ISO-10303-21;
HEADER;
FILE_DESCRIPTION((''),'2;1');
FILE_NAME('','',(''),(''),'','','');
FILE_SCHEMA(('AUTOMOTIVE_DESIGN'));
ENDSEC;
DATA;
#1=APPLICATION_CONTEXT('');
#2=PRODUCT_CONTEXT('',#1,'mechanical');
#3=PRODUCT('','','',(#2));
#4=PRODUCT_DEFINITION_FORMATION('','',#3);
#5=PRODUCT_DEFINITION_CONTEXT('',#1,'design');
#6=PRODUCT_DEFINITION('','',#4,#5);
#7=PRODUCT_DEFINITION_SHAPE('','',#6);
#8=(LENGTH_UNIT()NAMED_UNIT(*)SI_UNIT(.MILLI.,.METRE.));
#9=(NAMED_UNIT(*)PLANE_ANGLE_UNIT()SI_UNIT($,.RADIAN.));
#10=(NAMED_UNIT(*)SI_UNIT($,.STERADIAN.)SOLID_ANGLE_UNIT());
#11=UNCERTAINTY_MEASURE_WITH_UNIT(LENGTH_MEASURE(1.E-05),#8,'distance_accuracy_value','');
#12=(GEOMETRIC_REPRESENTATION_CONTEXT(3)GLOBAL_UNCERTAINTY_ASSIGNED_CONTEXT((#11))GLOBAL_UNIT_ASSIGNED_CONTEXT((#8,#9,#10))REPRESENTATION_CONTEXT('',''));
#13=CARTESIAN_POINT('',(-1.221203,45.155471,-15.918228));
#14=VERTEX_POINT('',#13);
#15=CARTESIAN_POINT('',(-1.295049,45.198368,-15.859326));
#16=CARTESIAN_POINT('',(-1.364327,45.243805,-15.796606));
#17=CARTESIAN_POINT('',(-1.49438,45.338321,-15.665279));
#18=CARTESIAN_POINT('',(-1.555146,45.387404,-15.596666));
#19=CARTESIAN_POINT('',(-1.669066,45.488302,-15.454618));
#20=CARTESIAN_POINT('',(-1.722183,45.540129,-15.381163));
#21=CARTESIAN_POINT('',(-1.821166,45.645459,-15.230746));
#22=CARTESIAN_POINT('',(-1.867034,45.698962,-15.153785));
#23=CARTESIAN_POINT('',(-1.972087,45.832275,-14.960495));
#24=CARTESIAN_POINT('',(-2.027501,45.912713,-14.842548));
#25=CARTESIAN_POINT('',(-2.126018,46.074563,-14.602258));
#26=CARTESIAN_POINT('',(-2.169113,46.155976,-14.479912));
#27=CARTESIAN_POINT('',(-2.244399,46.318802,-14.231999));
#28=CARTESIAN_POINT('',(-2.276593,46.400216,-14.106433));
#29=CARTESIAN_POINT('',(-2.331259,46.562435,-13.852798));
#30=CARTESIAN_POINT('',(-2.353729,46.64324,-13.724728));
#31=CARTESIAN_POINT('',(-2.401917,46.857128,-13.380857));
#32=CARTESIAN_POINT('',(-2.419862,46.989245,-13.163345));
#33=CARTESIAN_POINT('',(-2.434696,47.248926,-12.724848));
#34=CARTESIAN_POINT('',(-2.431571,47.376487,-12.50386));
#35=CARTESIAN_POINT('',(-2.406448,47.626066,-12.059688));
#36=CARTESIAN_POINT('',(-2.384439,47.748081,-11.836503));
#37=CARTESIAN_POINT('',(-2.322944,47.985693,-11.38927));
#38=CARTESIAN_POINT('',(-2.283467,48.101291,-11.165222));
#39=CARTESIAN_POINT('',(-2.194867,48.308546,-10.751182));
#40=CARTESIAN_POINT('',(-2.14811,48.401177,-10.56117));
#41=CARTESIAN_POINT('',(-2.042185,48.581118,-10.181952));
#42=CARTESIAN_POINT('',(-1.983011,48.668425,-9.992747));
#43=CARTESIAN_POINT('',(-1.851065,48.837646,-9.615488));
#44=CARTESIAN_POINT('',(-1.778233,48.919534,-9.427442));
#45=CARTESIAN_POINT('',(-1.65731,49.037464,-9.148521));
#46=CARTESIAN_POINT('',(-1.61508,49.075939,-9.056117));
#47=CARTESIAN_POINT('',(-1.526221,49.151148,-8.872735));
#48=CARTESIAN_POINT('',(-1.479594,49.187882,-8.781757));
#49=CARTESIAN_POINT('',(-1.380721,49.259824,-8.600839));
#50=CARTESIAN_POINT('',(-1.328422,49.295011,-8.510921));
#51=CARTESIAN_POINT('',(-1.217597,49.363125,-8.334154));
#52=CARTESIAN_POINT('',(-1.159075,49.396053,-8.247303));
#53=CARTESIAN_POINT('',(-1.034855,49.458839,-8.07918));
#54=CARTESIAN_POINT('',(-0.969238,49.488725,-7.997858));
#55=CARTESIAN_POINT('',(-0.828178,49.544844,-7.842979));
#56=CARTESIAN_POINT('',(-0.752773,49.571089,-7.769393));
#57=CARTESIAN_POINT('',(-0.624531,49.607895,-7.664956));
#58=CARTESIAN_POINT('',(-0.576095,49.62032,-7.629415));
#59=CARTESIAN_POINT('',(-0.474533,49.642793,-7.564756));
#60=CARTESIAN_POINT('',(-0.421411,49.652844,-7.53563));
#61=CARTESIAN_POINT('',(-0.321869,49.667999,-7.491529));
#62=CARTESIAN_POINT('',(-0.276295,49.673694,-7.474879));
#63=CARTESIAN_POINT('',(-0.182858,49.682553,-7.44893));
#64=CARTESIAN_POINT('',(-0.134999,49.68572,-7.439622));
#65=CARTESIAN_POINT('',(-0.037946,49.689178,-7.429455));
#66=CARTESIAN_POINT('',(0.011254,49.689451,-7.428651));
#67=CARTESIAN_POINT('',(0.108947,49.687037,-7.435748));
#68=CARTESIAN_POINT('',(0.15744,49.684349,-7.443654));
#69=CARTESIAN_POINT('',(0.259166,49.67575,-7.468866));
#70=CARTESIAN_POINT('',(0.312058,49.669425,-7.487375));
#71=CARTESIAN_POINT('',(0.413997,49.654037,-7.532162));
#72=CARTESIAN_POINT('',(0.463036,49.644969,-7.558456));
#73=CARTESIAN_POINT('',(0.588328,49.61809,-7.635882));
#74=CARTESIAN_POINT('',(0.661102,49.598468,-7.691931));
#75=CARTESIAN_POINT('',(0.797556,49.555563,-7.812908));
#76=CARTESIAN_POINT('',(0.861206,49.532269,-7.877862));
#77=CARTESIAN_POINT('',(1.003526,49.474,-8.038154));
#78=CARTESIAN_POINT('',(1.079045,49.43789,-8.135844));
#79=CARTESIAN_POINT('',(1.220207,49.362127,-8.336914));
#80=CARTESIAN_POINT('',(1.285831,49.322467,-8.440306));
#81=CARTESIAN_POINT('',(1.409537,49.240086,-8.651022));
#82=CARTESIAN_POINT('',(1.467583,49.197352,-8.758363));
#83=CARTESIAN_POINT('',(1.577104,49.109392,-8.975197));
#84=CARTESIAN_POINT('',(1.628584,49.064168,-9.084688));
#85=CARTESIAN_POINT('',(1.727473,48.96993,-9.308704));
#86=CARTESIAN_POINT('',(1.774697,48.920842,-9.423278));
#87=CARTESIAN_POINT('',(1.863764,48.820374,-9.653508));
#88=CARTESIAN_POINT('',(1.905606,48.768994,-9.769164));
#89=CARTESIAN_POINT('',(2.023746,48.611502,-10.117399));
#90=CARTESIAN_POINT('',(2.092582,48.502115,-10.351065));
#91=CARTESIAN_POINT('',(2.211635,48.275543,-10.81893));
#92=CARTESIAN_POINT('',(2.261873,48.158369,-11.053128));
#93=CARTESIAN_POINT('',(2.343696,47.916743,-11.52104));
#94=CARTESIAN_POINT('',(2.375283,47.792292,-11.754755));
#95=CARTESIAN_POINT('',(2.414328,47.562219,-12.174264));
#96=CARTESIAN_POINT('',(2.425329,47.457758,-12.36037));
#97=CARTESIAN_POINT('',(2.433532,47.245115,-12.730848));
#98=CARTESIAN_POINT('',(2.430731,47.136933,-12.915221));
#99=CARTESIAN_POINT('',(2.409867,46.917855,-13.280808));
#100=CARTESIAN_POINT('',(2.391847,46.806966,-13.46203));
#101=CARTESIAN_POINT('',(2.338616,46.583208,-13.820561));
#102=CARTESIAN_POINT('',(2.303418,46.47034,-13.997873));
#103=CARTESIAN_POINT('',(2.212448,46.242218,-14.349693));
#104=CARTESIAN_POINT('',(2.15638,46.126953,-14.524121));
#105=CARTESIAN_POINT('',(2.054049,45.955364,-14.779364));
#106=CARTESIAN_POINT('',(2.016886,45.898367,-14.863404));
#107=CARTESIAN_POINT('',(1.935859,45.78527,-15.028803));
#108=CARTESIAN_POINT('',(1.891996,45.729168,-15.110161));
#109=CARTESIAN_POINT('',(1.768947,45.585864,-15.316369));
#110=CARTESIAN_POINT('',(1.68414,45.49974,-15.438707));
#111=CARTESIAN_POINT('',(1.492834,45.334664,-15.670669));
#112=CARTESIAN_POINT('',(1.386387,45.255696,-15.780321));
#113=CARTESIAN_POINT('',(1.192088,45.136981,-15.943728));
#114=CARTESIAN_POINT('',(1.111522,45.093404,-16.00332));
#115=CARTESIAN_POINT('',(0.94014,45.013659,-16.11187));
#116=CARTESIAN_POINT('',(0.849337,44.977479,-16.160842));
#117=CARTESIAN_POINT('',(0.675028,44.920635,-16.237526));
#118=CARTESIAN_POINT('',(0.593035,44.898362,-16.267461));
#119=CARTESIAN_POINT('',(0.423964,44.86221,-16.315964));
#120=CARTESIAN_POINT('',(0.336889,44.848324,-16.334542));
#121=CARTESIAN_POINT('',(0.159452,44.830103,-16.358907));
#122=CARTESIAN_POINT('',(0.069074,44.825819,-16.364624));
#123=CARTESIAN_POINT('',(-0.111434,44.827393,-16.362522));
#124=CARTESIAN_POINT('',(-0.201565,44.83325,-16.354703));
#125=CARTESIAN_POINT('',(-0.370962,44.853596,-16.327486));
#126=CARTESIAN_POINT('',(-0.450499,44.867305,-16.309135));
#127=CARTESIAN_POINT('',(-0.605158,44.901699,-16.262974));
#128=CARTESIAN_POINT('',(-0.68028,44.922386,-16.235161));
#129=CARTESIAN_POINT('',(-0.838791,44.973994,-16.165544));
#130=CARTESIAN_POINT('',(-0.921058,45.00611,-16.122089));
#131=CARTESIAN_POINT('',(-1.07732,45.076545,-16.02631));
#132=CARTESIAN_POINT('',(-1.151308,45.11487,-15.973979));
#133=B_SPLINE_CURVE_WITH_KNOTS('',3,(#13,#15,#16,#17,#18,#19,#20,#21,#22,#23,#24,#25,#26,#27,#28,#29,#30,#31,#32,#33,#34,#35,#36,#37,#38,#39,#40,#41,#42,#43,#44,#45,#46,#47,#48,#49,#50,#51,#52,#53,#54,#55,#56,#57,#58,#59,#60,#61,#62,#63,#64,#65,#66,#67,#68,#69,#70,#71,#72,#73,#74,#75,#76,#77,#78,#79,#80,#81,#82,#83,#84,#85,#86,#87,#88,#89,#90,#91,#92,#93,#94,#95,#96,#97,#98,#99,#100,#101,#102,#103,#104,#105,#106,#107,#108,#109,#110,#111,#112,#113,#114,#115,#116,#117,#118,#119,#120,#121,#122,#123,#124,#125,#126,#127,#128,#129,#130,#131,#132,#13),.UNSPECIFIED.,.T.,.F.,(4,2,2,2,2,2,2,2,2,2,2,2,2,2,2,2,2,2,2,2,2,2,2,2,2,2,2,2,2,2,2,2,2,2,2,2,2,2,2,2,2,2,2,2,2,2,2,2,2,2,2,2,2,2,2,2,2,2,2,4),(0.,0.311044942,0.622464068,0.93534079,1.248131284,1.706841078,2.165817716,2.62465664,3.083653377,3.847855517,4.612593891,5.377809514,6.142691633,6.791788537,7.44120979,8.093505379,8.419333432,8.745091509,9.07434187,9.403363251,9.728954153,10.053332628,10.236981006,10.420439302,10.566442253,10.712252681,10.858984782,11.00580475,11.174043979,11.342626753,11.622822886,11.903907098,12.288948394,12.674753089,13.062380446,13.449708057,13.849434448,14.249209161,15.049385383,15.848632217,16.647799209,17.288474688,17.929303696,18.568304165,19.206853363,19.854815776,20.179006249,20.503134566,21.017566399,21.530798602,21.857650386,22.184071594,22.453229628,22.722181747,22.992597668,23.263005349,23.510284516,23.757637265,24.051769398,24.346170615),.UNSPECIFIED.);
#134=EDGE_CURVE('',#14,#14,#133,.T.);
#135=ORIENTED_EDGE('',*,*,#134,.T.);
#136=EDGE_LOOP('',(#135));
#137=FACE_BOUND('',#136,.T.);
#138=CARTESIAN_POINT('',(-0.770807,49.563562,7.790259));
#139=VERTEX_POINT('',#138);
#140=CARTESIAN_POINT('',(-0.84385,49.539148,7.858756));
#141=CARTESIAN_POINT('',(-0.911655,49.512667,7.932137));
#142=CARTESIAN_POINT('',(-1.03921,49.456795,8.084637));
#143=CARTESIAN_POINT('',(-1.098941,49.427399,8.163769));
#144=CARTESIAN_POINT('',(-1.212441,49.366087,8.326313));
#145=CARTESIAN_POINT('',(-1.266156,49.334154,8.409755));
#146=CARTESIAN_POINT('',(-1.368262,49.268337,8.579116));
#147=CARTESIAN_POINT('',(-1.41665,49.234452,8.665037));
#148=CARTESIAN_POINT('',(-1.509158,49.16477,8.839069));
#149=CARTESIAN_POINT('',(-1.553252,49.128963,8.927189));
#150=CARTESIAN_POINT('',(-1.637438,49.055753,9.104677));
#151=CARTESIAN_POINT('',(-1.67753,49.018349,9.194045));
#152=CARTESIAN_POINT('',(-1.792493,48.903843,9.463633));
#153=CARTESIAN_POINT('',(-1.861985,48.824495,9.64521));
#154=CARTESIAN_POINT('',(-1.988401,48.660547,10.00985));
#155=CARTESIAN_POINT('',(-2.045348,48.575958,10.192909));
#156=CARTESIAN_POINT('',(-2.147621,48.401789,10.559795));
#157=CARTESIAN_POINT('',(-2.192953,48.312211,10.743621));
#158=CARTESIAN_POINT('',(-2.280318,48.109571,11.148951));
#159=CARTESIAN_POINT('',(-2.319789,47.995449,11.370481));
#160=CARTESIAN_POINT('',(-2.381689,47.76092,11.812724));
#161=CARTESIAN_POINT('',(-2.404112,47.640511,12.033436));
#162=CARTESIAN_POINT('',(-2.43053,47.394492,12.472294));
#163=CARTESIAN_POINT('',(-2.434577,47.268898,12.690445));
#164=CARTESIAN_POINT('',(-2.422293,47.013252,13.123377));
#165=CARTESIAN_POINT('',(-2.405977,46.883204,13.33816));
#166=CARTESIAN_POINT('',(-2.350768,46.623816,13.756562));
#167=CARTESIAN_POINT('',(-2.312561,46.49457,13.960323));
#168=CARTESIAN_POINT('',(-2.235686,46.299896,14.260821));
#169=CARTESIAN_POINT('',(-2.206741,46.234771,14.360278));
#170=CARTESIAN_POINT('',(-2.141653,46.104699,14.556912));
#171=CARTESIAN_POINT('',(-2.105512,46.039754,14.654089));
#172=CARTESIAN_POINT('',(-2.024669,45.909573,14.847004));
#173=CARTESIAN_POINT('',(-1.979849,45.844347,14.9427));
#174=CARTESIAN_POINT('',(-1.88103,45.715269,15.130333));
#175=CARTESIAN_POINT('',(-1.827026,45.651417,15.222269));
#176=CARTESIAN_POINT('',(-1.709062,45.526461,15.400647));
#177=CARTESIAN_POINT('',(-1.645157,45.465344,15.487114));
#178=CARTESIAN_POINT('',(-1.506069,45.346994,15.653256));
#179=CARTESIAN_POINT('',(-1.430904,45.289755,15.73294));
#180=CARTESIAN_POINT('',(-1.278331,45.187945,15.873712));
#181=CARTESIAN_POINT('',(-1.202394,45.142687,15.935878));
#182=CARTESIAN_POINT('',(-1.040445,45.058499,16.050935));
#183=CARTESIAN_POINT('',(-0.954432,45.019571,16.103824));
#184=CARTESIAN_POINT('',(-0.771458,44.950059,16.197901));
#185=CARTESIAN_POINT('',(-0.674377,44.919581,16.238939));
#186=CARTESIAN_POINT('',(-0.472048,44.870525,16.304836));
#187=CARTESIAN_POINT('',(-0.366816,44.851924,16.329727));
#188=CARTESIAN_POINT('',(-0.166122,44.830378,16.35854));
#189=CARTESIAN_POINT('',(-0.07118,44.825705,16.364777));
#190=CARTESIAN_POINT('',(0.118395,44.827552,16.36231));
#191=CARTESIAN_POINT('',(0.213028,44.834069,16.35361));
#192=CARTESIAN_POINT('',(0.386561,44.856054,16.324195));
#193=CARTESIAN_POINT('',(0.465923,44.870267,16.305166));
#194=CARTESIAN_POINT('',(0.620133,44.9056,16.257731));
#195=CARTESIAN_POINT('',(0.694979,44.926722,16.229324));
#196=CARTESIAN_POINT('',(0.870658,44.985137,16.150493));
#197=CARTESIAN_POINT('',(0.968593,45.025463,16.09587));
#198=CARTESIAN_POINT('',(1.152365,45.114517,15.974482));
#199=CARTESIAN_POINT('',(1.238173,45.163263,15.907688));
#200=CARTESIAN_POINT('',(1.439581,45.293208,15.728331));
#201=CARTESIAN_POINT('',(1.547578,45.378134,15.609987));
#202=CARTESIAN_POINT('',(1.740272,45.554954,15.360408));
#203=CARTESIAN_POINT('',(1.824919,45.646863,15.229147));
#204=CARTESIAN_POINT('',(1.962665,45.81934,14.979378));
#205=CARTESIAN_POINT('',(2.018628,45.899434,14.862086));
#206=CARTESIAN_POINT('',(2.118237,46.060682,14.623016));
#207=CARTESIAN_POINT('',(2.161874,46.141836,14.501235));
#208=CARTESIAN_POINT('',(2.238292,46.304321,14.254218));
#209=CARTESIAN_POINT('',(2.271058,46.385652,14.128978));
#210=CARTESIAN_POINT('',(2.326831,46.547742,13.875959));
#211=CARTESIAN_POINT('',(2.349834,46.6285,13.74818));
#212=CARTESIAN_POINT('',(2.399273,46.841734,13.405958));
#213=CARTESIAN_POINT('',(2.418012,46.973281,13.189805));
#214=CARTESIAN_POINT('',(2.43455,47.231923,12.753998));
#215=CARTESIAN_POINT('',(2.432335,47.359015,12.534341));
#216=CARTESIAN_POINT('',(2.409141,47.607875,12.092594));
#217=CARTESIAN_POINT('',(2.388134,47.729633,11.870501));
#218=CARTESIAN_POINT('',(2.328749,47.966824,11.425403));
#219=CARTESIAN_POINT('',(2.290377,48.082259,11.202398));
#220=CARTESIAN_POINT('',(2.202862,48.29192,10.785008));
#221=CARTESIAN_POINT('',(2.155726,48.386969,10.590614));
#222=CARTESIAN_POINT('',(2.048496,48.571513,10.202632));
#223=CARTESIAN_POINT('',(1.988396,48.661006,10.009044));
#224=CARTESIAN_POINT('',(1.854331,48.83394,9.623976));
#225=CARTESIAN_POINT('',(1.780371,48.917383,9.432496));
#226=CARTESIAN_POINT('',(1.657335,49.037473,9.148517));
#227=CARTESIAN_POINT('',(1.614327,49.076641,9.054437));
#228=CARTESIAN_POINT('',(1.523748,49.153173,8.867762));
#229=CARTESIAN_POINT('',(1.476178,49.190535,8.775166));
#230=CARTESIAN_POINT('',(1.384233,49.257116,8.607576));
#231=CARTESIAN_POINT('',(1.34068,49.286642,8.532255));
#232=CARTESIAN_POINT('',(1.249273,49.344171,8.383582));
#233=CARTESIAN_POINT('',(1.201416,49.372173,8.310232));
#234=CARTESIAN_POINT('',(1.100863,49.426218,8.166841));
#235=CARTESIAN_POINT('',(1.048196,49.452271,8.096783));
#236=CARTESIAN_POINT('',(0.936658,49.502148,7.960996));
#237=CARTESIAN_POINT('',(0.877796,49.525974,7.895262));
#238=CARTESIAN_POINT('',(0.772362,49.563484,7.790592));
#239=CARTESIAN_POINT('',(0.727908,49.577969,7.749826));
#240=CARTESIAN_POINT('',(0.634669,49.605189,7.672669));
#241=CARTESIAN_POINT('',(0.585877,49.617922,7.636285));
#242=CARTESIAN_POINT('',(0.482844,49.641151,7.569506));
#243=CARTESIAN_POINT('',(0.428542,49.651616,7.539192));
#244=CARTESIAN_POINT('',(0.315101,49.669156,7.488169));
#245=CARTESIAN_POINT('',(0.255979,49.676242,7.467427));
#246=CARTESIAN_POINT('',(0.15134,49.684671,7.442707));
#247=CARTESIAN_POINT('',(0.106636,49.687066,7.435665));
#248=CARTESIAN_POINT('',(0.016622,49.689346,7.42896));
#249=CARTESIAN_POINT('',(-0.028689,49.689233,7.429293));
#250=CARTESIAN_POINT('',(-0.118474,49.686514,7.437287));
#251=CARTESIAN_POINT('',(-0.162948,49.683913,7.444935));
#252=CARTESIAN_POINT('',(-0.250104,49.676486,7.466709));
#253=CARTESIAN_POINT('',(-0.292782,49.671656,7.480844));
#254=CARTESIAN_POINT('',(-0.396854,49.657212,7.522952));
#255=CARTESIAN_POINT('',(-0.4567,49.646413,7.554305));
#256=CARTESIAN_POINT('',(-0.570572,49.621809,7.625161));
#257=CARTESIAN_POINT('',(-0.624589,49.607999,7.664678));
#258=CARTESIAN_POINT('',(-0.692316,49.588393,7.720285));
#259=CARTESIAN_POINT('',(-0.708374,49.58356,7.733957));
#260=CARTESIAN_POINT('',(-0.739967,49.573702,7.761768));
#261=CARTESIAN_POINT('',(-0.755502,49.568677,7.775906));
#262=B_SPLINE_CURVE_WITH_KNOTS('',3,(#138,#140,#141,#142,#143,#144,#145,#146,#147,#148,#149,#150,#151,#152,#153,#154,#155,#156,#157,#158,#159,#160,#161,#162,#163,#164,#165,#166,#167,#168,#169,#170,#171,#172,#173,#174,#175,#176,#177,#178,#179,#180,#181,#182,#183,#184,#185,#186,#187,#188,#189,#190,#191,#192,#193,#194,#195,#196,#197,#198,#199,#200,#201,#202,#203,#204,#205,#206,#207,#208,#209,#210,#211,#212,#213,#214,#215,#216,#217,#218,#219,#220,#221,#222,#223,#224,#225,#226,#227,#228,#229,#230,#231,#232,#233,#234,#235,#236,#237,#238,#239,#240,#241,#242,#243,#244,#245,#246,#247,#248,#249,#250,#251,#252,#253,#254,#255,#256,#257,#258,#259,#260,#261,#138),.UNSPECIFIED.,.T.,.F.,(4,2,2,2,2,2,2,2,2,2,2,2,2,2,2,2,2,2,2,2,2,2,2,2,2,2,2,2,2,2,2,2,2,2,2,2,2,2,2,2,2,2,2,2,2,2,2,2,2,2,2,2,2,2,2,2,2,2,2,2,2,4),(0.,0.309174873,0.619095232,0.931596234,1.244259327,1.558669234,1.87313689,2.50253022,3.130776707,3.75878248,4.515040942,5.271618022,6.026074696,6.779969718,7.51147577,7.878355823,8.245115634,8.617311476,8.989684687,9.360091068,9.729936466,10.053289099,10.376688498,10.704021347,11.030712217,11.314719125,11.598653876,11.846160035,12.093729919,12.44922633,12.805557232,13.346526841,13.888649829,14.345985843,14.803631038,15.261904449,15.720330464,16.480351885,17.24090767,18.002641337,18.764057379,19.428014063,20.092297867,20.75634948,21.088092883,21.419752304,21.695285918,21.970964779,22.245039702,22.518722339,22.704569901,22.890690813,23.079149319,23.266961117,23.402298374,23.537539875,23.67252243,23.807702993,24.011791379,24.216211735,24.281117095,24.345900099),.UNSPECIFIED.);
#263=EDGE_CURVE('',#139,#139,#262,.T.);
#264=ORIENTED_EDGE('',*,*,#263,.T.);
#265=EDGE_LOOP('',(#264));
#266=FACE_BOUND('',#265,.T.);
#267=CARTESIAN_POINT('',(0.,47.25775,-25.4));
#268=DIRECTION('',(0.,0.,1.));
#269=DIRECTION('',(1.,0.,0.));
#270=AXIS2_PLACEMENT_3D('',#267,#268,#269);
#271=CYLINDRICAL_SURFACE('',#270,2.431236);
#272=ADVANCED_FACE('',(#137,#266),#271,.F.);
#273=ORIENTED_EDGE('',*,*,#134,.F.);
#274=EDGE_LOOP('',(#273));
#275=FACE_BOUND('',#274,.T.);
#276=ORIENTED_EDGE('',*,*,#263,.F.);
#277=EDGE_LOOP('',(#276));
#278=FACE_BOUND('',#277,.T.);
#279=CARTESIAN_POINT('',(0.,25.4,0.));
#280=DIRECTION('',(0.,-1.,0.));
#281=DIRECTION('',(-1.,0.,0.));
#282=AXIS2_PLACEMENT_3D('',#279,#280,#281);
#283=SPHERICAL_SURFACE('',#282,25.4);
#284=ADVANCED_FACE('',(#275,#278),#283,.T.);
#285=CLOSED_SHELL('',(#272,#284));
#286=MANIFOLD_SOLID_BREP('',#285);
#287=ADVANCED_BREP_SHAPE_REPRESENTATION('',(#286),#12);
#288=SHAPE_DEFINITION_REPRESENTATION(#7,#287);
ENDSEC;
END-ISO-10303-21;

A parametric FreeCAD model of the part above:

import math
import FreeCAD as App
import Part
import Sketcher

V = App.Vector
Q = App.Units.Quantity

doc = App.newDocument("Part")
body = doc.addObject("PartDesign::Body", "Body")

# Sketch on XY plane
sketch1 = body.newObject("Sketcher::SketchObject", "Sketch")
sketch1.AttachmentSupport = (doc.getObject("XY_Plane"), [""])
sketch1.MapMode = "FlatFace"
sketch1.addGeometry(Part.LineSegment(V(0, 50.8, 0), V(0, 0, 0)), False)
sketch1.addGeometry(Part.ArcOfCircle(Part.Circle(V(0, 25.4, 0), V(0, 0, 1), 25.4), math.radians(-90), math.radians(90)), False)
sketch1.addConstraint(Sketcher.Constraint("Coincident", 0, 1, 1, 2))
sketch1.addConstraint(Sketcher.Constraint("Coincident", 1, 1, 0, 2))
sketch1.addConstraint(Sketcher.Constraint("Vertical", 0))
sketch1.addConstraint(Sketcher.Constraint("Coincident", 1, 1, -1, 1))
sketch1.addConstraint(Sketcher.Constraint("PointOnObject", 1, 3, -2))
sketch1.addConstraint(Sketcher.Constraint("Radius", 1, Q("1 in")))
revolution = body.newObject("PartDesign::Revolution", "Revolution")
revolution.Profile = sketch1
revolution.ReferenceAxis = (sketch1, ["V_Axis"])
revolution.Angle = 360

# Sketch on XY plane
sketch2 = body.newObject("Sketcher::SketchObject", "Sketch001")
sketch2.AttachmentSupport = (doc.getObject("XY_Plane"), [""])
sketch2.MapMode = "FlatFace"
sketch2.addGeometry(Part.Circle(V(0, 47.25775, 0), V(0, 0, 1), 2.431236), False)
sketch2.addConstraint(Sketcher.Constraint("PointOnObject", 0, 3, -2))
sketch2.addConstraint(Sketcher.Constraint("Diameter", 0, Q("4.862473 mm")))
sketch2.addConstraint(Sketcher.Constraint("DistanceY", -1, 1, 0, 3, Q("47.25775 mm")))
pocket1 = body.newObject("PartDesign::Pocket", "Pocket")
pocket1.Profile = sketch2
pocket1.Type = "ThroughAll"
pocket1.Midplane = True

doc.recompute()
